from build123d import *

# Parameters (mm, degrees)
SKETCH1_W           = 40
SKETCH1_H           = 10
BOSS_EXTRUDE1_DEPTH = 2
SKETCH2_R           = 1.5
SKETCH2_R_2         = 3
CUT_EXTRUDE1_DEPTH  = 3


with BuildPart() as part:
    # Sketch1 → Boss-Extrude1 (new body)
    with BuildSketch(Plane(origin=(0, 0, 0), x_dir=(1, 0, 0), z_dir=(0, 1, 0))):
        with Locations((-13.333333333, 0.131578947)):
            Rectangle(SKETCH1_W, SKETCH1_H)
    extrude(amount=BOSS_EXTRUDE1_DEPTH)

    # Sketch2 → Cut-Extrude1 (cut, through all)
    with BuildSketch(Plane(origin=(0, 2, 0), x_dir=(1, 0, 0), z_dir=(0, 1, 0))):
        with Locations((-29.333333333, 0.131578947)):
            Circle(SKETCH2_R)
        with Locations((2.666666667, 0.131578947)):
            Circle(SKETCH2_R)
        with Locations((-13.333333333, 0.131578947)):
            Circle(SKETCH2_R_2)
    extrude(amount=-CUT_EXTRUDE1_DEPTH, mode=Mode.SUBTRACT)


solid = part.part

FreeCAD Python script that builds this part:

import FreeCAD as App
import Part
import Sketcher

V = App.Vector
Q = App.Units.Quantity

doc = App.newDocument("Part")
body = doc.addObject("PartDesign::Body", "Body")

# Sketch on XZ plane
sketch1 = doc.addObject("Sketcher::SketchObject", "Sketch")
body.addObject(sketch1)
sketch1.AttachmentSupport = (doc.XZ_Plane, [""])
sketch1.MapMode = "FlatFace"
sketch1.addGeometry([
    Part.LineSegment(V(-33, -5, 0), V(-33, 5, 0)),
    Part.LineSegment(V(-33, 5, 0), V(7, 5, 0)),
    Part.LineSegment(V(7, 5, 0), V(7, -5, 0)),
    Part.LineSegment(V(7, -5, 0), V(-33, -5, 0)),
], False)
sketch1.addConstraint([
    Sketcher.Constraint("Coincident", 0, 2, 1, 1),
    Sketcher.Constraint("Coincident", 1, 2, 2, 1),
    Sketcher.Constraint("Coincident", 2, 2, 3, 1),
    Sketcher.Constraint("Coincident", 3, 2, 0, 1),
    Sketcher.Constraint("Vertical", 0),
    Sketcher.Constraint("Horizontal", 1),
    Sketcher.Constraint("Vertical", 2),
    Sketcher.Constraint("Horizontal", 3),
    Sketcher.Constraint("DistanceX", 1, 1, 1, 2, Q("40 mm")),
    Sketcher.Constraint("DistanceY", 0, 1, 0, 2, Q("10 mm")),
    Sketcher.Constraint("DistanceY", -1, 1, 0, 2, Q("4.868421 mm")),
    Sketcher.Constraint("DistanceX", 0, 2, -1, 1, Q("33.333333 mm")),
])
pad1 = doc.addObject("PartDesign::Pad", "Pad")
body.addObject(pad1)
pad1.Profile = sketch1
pad1.Length = 2
pad1.Reversed = True

# Sketch on XZ plane
sketch2 = doc.addObject("Sketcher::SketchObject", "Sketch001")
body.addObject(sketch2)
sketch2.AttachmentSupport = (doc.XZ_Plane, [""])
sketch2.MapMode = "FlatFace"
sketch2.AttachmentOffset = App.Placement(V(0, 0, -2), App.Rotation())
sketch2.addGeometry([
    Part.Circle(V(-29.3, -0.1, 0), V(0, 0, 1), 1.5),
    Part.Circle(V(2.7, -0.1, 0), V(0, 0, 1), 1.5),
    Part.Circle(V(-13.3, -0.1, 0), V(0, 0, 1), 3),
], False)
sketch2.addConstraint([
    Sketcher.Constraint("Equal", 0, 1),
    Sketcher.Constraint("Horizontal", 0, 3, 1, 3),
    Sketcher.Constraint("Horizontal", 1, 3, 2, 3),
    Sketcher.Constraint("Diameter", 0, Q("3 mm")),
    Sketcher.Constraint("Diameter", 2, Q("6 mm")),
    Sketcher.Constraint("DistanceX", 0, 3, 1, 3, Q("32 mm")),
    Sketcher.Constraint("DistanceX", 0, 3, 2, 3, Q("16 mm")),
    Sketcher.Constraint("DistanceY", 0, 3, -1, 1, Q("0.131579 mm")),
    Sketcher.Constraint("DistanceX", 0, 3, -1, 1, Q("29.333333 mm")),
])
pocket1 = doc.addObject("PartDesign::Pocket", "Pocket")
body.addObject(pocket1)
pocket1.Profile = sketch2
pocket1.Type = "ThroughAll"
pocket1.Reversed = True

doc.recompute()
